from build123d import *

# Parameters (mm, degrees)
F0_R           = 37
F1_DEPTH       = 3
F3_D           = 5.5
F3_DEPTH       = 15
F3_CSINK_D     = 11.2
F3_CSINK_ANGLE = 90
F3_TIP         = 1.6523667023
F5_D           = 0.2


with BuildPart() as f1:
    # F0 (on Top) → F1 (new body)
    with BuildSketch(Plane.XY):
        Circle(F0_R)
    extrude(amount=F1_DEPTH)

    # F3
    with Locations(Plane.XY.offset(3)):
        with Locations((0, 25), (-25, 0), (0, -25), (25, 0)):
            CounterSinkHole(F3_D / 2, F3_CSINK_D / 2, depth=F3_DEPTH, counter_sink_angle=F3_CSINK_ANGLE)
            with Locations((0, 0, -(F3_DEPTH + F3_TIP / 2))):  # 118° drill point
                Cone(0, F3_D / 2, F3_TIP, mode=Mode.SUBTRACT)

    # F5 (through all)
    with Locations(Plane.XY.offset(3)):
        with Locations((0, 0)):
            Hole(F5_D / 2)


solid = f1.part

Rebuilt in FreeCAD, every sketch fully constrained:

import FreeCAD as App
import Part
import Sketcher
from FreeCAD import Vector

doc = App.newDocument("Part")
body = doc.addObject("PartDesign::Body", "Body")

# Sketch on XY plane
sketch1 = body.newObject("Sketcher::SketchObject", "Sketch")
sketch1.AttachmentSupport = (doc.getObject("XY_Plane"), [""])
sketch1.MapMode = "FlatFace"
sketch1.addGeometry(Part.Circle(Vector(0, 0, 0), Vector(0, 0, 1), 37), False)
sketch1.addConstraint(Sketcher.Constraint("Coincident", 0, 3, -1, 1))
sketch1.addConstraint(Sketcher.Constraint("Diameter", 0, 74.0))
pad1 = body.newObject("PartDesign::Pad", "Pad")
pad1.Profile = sketch1
pad1.Length = 3

# Sketch on XY plane
sketch2 = body.newObject("Sketcher::SketchObject", "Sketch001")
sketch2.AttachmentSupport = (doc.getObject("XY_Plane"), [""])
sketch2.MapMode = "FlatFace"
sketch2.AttachmentOffset = App.Placement(Vector(0, 0, 3), App.Rotation())
sketch2.addGeometry(Part.Circle(Vector(0, 25, 0), Vector(0, 0, 1), 2.8), False)
sketch2.addGeometry(Part.Circle(Vector(-25, 0, 0), Vector(0, 0, 1), 2.8), False)
sketch2.addGeometry(Part.Circle(Vector(0, -25, 0), Vector(0, 0, 1), 2.8), False)
sketch2.addGeometry(Part.Circle(Vector(25, 0, 0), Vector(0, 0, 1), 2.8), False)
sketch2.addConstraint(Sketcher.Constraint("Equal", 0, 1))
sketch2.addConstraint(Sketcher.Constraint("Equal", 1, 2))
sketch2.addConstraint(Sketcher.Constraint("Equal", 2, 3))
sketch2.addConstraint(Sketcher.Constraint("Symmetric", 0, 3, 2, 3, -1, 1))
sketch2.addConstraint(Sketcher.Constraint("Symmetric", 1, 3, 3, 3, -1, 1))
sketch2.addConstraint(Sketcher.Constraint("PointOnObject", 0, 3, -2))
sketch2.addConstraint(Sketcher.Constraint("PointOnObject", 1, 3, -1))
sketch2.addConstraint(Sketcher.Constraint("Diameter", 0, 5.5))
sketch2.addConstraint(Sketcher.Constraint("DistanceY", -1, 1, 0, 3, 25.0))
sketch2.addConstraint(Sketcher.Constraint("DistanceX", 1, 3, -1, 1, 25.0))
doc.recompute()
hole = body.newObject("PartDesign::Hole", "Hole")
hole.Profile = sketch2
hole.ThreadType = "None"
hole.Diameter = 5.5
hole.DepthType = "Dimension"
hole.Depth = 15
hole.DrillPoint = "Angled"
hole.DrillPointAngle = 118
hole.HoleCutType = "Countersink"
hole.HoleCutDiameter = 11.2
hole.HoleCutCountersinkAngle = 90

# Sketch on XY plane
sketch3 = body.newObject("Sketcher::SketchObject", "Sketch002")
sketch3.AttachmentSupport = (doc.getObject("XY_Plane"), [""])
sketch3.MapMode = "FlatFace"
sketch3.AttachmentOffset = App.Placement(Vector(0, 0, 3), App.Rotation())
sketch3.addGeometry(Part.Circle(Vector(0, 0, 0), Vector(0, 0, 1), 0.1), False)
sketch3.addConstraint(Sketcher.Constraint("Coincident", 0, 3, -1, 1))
sketch3.addConstraint(Sketcher.Constraint("Diameter", 0, 0.2))
doc.recompute()
hole2 = body.newObject("PartDesign::Hole", "Hole001")
hole2.Profile = sketch3
hole2.ThreadType = "None"
hole2.Diameter = 0.2
hole2.DepthType = "ThroughAll"

doc.recompute()
